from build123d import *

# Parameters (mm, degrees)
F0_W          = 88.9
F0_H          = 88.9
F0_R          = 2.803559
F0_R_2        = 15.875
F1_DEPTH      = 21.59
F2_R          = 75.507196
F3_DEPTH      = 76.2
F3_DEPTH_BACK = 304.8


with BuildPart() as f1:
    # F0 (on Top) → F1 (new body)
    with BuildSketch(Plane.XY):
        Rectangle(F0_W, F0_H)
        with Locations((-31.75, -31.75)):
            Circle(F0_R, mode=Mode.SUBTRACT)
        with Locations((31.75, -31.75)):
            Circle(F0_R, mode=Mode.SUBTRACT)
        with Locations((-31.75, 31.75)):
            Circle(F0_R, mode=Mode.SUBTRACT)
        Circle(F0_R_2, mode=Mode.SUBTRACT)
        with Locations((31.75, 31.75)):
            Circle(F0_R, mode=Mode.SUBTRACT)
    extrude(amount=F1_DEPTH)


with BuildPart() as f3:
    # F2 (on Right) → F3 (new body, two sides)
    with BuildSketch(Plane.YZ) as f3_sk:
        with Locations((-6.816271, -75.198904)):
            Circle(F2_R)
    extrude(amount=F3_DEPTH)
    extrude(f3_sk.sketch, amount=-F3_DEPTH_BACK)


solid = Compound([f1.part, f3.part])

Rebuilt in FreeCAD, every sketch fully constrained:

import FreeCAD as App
import Part
import Sketcher

V = App.Vector
Q = App.Units.Quantity

doc = App.newDocument("Part")
body = doc.addObject("PartDesign::Body", "Body")

# Sketch on XY plane
sketch1 = doc.addObject("Sketcher::SketchObject", "Sketch")
body.addObject(sketch1)
sketch1.AttachmentSupport = (doc.XY_Plane, [""])
sketch1.MapMode = "FlatFace"
sketch1.addGeometry([
    Part.LineSegment(V(-44.5, 44.5, 0), V(-44.5, -44.5, 0)),  # 0
    Part.LineSegment(V(-44.5, -44.5, 0), V(44.5, -44.5, 0)),  # 1
    Part.LineSegment(V(44.5, -44.5, 0), V(44.5, 44.5, 0)),  # 2
    Part.LineSegment(V(44.5, 44.5, 0), V(-44.5, 44.5, 0)),  # 3
    Part.Circle(V(-31.8, -31.8, 0), V(0, 0, 1), 2.8),  # 4
    Part.Circle(V(31.8, -31.8, 0), V(0, 0, 1), 2.8),  # 5
    Part.Circle(V(-31.8, 31.8, 0), V(0, 0, 1), 2.8),  # 6
    Part.Circle(V(0, 0, 0), V(0, 0, 1), 15.9),  # 7
    Part.Circle(V(31.8, 31.8, 0), V(0, 0, 1), 2.8),  # 8
], False)
sketch1.addConstraint([
    Sketcher.Constraint("Coincident", 0, 2, 1, 1),
    Sketcher.Constraint("Coincident", 1, 2, 2, 1),
    Sketcher.Constraint("Coincident", 2, 2, 3, 1),
    Sketcher.Constraint("Coincident", 3, 2, 0, 1),
    Sketcher.Constraint("Vertical", 0),
    Sketcher.Constraint("Horizontal", 1),
    Sketcher.Constraint("Vertical", 2),
    Sketcher.Constraint("Horizontal", 3),
    Sketcher.Constraint("Coincident", 7, 3, -1, 1),
    Sketcher.Constraint("Equal", 4, 5),
    Sketcher.Constraint("Equal", 5, 6),
    Sketcher.Constraint("Equal", 6, 8),
    Sketcher.Constraint("Symmetric", 5, 3, 6, 3, -1, 1),
    Sketcher.Constraint("Symmetric", 4, 3, 8, 3, -1, 1),
    Sketcher.Constraint("Symmetric", 0, 2, 2, 2, -1, 1),
    Sketcher.Constraint("Symmetric", 4, 3, 5, 3, -2),
    Sketcher.Constraint("Equal", 3, 0),
    Sketcher.Constraint("Diameter", 7, Q("1.25 in")),
    Sketcher.Constraint("DistanceX", 1, 1, 1, 2, Q("3.5 in")),
    Sketcher.Constraint("DistanceX", 0, 2, 5, 3, Q("3 in")),
    Sketcher.Constraint("DistanceY", 0, 2, 6, 3, Q("3 in")),
    Sketcher.Constraint("Diameter", 4, Q("5.607118 mm")),
])
pad1 = doc.addObject("PartDesign::Pad", "Pad")
body.addObject(pad1)
pad1.Profile = sketch1
pad1.Length = Q("0.85 in")
body2 = doc.addObject("PartDesign::Body", "Body001")

# Sketch on YZ plane
sketch2 = doc.addObject("Sketcher::SketchObject", "Sketch001")
body2.addObject(sketch2)
sketch2.AttachmentSupport = (doc.getObject("YZ_Plane001"), [""])
sketch2.MapMode = "FlatFace"
sketch2.addGeometry(Part.Circle(V(-7, -75, 0), V(0, 0, 1), 76), False)
sketch2.addConstraint([
    Sketcher.Constraint("Diameter", 0, Q("151.014392 mm")),
    Sketcher.Constraint("DistanceX", 0, 3, -1, 1, Q("6.816271 mm")),
    Sketcher.Constraint("DistanceY", 0, 3, -1, 1, Q("75.198904 mm")),
])
pad2 = doc.addObject("PartDesign::Pad", "Pad001")
body2.addObject(pad2)
pad2.Profile = sketch2
pad2.Type = "TwoLengths"
pad2.Length = Q("3 in")
pad2.Length2 = Q("12 in")

doc.recompute()
